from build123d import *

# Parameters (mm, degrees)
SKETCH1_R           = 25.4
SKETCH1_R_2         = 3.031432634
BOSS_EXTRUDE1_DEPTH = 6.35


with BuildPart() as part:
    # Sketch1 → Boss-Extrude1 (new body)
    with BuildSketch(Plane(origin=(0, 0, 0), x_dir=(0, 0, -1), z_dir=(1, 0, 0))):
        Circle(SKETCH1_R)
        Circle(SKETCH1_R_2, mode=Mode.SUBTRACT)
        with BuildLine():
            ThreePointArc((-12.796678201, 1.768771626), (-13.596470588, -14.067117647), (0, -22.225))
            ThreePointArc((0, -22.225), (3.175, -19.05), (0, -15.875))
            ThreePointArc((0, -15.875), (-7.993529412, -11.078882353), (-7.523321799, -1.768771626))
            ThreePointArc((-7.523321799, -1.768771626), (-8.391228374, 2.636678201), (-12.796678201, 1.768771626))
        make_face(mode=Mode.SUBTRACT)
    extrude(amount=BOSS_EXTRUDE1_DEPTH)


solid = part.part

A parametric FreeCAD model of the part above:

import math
import FreeCAD as App
import Part
import Sketcher

V = App.Vector
Q = App.Units.Quantity

doc = App.newDocument("Part")
params = doc.addObject("Spreadsheet::Sheet", "Params")
for row, (alias, value) in enumerate([
    ("sketch1_diameter", "2 in"),
    ("sketch1_radius", "0.125 in"),
    ("pad1_length", "0.25 in"),
], start=1):
    params.set(f"A{row}", alias)
    params.set(f"B{row}", "=" + value)
    params.setAlias(f"B{row}", alias)

body = doc.addObject("PartDesign::Body", "Body")

# Sketch on YZ plane
sketch1 = doc.addObject("Sketcher::SketchObject", "Sketch")
body.addObject(sketch1)
sketch1.AttachmentSupport = (doc.YZ_Plane, [""])
sketch1.MapMode = "FlatFace"
sketch1.addGeometry([
    Part.Circle(V(0, 0, 0), V(0, 0, 1), 25.4),  # 0
    Part.ArcOfCircle(Part.Circle(V(-6.8, 0, 0), V(0, 0, 1), 15.4), math.radians(56), math.radians(180)),  # 1
    Part.ArcOfCircle(Part.Circle(V(0, 10.2, 0), V(0, 0, 1), 3.2), math.radians(-124), math.radians(56)),  # 2
    Part.ArcOfCircle(Part.Circle(V(-6.8, 0, 0), V(0, 0, 1), 9.1), math.radians(56), math.radians(180)),  # 3
    Part.ArcOfCircle(Part.Circle(V(-19.1, 0, 0), V(0, 0, 1), 3.2), math.radians(180), math.radians(360)),  # 4
    Part.Circle(V(0, 0, 0), V(0, 0, 1), 3),  # 5
], False)
sketch1.addConstraint([
    Sketcher.Constraint("Tangent", 1, 1, 2, 2),
    Sketcher.Constraint("Tangent", 2, 1, 3, 1),
    Sketcher.Constraint("Tangent", 3, 2, 4, 2),
    Sketcher.Constraint("Tangent", 4, 1, 1, 2),
    Sketcher.Constraint("Coincident", 0, 3, -1, 1),
    Sketcher.Constraint("Coincident", 5, 3, -1, 1),
    Sketcher.Constraint("Coincident", 3, 3, 1, 3),
    Sketcher.Constraint("PointOnObject", 1, 3, -1),
    Sketcher.Constraint("PointOnObject", 2, 3, -2),
    Sketcher.Constraint("PointOnObject", 4, 3, -1),
    Sketcher.Constraint("Diameter", 0, Q("2 in")),
    Sketcher.Constraint("Radius", 2, Q("0.125 in")),
    Sketcher.Constraint("DistanceY", -1, 1, 2, 3, Q("0.4 in")),
    Sketcher.Constraint("DistanceX", 4, 3, -1, 1, Q("0.75 in")),
    Sketcher.Constraint("Diameter", 5, 6.062865),
])
sketch1.setExpression("Constraints[10]", "Params.sketch1_diameter")
sketch1.setExpression("Constraints[11]", "Params.sketch1_radius")
pad1 = doc.addObject("PartDesign::Pad", "Pad")
body.addObject(pad1)
pad1.Profile = sketch1
pad1.setExpression("Length", "Params.pad1_length")

doc.recompute()
